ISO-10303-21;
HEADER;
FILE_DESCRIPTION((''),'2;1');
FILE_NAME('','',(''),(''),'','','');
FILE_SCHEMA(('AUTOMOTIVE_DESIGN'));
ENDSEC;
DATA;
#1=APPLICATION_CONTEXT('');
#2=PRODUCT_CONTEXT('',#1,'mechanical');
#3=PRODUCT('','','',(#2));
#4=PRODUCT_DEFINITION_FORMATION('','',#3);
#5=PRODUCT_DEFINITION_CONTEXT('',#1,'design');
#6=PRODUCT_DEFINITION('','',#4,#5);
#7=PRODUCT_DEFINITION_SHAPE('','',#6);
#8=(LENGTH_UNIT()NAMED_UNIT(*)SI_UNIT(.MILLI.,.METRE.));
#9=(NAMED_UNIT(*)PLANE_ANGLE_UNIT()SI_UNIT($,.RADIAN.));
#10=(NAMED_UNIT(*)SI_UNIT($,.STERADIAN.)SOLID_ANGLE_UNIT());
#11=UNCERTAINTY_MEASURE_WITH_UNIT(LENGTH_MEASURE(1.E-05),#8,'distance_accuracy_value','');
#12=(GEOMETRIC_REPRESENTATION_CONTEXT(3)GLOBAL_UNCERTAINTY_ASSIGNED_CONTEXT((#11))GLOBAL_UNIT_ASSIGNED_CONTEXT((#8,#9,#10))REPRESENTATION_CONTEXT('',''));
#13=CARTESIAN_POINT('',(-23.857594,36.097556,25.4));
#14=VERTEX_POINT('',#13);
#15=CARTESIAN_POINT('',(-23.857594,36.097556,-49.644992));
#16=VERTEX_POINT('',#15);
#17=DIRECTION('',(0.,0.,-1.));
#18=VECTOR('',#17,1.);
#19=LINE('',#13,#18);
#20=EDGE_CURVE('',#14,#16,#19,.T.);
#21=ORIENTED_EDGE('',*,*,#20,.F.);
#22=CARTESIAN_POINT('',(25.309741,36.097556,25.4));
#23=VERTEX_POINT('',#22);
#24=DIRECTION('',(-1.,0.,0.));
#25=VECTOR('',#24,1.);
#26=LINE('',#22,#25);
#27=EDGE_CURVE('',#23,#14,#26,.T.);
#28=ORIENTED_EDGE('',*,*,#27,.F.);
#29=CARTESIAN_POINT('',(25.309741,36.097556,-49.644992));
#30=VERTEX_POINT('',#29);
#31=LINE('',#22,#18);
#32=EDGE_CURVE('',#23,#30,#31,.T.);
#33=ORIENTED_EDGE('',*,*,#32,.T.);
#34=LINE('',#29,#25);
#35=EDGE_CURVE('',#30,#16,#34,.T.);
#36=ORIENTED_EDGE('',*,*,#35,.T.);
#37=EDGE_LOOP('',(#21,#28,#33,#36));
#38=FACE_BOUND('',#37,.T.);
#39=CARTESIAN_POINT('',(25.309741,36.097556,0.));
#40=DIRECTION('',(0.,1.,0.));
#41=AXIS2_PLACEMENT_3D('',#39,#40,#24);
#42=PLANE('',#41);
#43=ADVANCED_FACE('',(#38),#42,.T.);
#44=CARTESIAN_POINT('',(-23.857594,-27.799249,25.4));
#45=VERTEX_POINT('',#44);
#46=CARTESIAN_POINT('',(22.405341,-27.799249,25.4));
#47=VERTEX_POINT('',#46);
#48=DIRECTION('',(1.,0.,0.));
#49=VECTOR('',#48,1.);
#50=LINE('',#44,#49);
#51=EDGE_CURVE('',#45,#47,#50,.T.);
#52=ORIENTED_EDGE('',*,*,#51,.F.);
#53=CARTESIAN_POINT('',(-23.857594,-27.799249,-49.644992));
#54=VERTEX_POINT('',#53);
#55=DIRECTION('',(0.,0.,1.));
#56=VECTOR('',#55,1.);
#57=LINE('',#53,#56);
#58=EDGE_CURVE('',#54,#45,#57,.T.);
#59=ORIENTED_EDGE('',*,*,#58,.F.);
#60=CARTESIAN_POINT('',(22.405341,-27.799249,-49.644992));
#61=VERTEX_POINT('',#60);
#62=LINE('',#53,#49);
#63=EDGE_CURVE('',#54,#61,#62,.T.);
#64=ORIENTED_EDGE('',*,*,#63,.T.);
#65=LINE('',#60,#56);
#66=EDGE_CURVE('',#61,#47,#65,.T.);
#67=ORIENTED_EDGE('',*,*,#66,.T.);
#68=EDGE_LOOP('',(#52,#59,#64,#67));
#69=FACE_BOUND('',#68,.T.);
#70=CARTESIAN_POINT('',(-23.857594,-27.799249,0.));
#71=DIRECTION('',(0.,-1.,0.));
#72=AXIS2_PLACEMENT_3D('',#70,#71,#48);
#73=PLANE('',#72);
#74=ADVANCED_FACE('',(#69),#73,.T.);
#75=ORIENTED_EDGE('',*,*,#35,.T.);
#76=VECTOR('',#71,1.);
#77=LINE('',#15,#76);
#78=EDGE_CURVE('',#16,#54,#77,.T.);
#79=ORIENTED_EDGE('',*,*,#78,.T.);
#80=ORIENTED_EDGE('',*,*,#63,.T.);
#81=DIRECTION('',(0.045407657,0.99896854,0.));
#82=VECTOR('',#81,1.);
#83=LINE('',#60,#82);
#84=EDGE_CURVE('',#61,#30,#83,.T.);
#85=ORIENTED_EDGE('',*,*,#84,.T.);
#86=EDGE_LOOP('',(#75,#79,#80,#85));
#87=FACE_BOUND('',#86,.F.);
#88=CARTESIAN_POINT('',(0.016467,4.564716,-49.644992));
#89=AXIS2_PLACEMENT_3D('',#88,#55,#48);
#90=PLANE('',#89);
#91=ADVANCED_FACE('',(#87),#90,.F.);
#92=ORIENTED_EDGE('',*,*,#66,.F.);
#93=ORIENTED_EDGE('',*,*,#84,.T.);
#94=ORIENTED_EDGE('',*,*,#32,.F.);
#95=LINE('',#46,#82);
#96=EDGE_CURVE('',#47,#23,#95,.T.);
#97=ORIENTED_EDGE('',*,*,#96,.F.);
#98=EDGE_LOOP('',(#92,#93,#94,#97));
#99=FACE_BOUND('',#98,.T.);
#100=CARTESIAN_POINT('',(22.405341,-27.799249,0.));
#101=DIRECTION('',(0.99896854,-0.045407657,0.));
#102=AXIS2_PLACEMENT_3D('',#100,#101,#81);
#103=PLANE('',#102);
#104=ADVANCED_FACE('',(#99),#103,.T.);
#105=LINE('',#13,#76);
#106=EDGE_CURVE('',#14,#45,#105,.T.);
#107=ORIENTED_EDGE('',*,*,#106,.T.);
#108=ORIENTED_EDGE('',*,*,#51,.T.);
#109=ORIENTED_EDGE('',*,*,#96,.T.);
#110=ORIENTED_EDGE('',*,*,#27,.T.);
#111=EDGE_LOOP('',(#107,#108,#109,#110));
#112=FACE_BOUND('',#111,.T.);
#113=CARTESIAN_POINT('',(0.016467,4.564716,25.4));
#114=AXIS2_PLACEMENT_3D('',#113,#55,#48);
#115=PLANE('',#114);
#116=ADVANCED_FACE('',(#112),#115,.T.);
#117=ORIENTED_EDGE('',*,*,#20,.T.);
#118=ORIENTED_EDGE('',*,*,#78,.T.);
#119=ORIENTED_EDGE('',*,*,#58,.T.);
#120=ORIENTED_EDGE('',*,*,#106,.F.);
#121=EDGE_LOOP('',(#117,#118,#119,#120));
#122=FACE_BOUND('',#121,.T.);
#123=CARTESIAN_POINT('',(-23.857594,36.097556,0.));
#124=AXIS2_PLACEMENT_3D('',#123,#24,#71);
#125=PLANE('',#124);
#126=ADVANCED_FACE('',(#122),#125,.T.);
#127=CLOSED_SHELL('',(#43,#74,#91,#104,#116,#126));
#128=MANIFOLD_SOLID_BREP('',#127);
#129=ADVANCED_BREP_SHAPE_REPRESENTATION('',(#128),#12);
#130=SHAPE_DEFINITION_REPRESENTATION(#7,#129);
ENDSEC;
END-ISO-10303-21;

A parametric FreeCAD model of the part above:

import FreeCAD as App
import Part
import Sketcher
from FreeCAD import Vector
Q = App.Units.Quantity


def add_polygon(sketch, points):
    """Adds a closed chain of lines whose ends are joined by coincident constraints."""
    first, n = sketch.GeometryCount, len(points)
    for a, b in zip(points, points[1:] + points[:1]):
        sketch.addGeometry(Part.LineSegment(App.Vector(*a, 0), App.Vector(*b, 0)), False)
    for i in range(n):
        sketch.addConstraint(Sketcher.Constraint("Coincident", first + i, 2, first + (i + 1) % n, 1))

doc = App.newDocument("Part")
body = doc.addObject("PartDesign::Body", "Body")

sketch1 = body.newObject("Sketcher::SketchObject", "Sketch")
sketch1.AttachmentSupport = (doc.getObject("XY_Plane"), [""])
sketch1.MapMode = "FlatFace"
add_polygon(sketch1, [(-24, 36), (-24, -28), (22, -28), (25, 36)])
sketch1.addConstraint([
    Sketcher.Constraint("Vertical", 0),
    Sketcher.Constraint("Horizontal", 1),
    Sketcher.Constraint("Horizontal", 3),
    Sketcher.Constraint("DistanceX", -1, 1, 1, 2, Q("0.8821 in")),
    Sketcher.Constraint("DistanceX", 1, 2, 2, 2, Q("2.9044 mm")),
    Sketcher.Constraint("Distance", 2, Q("63.96278 mm")),
    Sketcher.Constraint("DistanceX", 1, 1, 1, 2, Q("46.262935 mm")),
    Sketcher.Constraint("DistanceY", 0, 2, -1, 1, Q("27.799249 mm")),
])
pad1 = body.newObject("PartDesign::Pad", "Pad")
pad1.Profile = sketch1
pad1.Type = "TwoLengths"
pad1.Length = Q("1 in")
pad1.Length2 = 49.644992

doc.recompute()
